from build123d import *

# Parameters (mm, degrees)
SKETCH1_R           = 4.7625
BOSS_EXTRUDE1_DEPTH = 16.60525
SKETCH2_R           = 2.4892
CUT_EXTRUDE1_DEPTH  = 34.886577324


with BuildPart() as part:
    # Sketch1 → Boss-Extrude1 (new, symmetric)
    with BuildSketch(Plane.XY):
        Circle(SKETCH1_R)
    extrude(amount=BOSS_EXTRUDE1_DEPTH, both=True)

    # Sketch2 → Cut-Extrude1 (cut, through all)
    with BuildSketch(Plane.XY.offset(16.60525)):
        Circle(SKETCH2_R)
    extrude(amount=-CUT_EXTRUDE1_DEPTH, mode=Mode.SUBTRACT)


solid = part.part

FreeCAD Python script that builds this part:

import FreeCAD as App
import Part
import Sketcher

V = App.Vector
Q = App.Units.Quantity

doc = App.newDocument("Part")
body = doc.addObject("PartDesign::Body", "Body")

# Sketch on XY plane
sketch1 = body.newObject("Sketcher::SketchObject", "Sketch")
sketch1.AttachmentSupport = (doc.getObject("XY_Plane"), [""])
sketch1.MapMode = "FlatFace"
sketch1.addGeometry(Part.Circle(V(0, 0, 0), V(0, 0, 1), 4.7625), False)
sketch1.addConstraint([
    Sketcher.Constraint("Coincident", 0, 3, -1, 1),
    Sketcher.Constraint("Diameter", 0, Q("0.375 in")),
])
pad1 = body.newObject("PartDesign::Pad", "Pad")
pad1.Profile = sketch1
pad1.Length = Q("1.3075 in")
pad1.Midplane = True

# Sketch on XY plane
sketch2 = body.newObject("Sketcher::SketchObject", "Sketch001")
sketch2.AttachmentSupport = (doc.getObject("XY_Plane"), [""])
sketch2.MapMode = "FlatFace"
sketch2.AttachmentOffset = App.Placement(V(0, 0, 16.60525), App.Rotation())
sketch2.addGeometry(Part.Circle(V(0, 0, 0), V(0, 0, 1), 2.4892), False)
sketch2.addConstraint([
    Sketcher.Constraint("Coincident", 0, 3, -1, 1),
    Sketcher.Constraint("Diameter", 0, Q("0.196 in")),
])
pocket1 = body.newObject("PartDesign::Pocket", "Pocket")
pocket1.Profile = sketch2
pocket1.Type = "ThroughAll"

doc.recompute()
